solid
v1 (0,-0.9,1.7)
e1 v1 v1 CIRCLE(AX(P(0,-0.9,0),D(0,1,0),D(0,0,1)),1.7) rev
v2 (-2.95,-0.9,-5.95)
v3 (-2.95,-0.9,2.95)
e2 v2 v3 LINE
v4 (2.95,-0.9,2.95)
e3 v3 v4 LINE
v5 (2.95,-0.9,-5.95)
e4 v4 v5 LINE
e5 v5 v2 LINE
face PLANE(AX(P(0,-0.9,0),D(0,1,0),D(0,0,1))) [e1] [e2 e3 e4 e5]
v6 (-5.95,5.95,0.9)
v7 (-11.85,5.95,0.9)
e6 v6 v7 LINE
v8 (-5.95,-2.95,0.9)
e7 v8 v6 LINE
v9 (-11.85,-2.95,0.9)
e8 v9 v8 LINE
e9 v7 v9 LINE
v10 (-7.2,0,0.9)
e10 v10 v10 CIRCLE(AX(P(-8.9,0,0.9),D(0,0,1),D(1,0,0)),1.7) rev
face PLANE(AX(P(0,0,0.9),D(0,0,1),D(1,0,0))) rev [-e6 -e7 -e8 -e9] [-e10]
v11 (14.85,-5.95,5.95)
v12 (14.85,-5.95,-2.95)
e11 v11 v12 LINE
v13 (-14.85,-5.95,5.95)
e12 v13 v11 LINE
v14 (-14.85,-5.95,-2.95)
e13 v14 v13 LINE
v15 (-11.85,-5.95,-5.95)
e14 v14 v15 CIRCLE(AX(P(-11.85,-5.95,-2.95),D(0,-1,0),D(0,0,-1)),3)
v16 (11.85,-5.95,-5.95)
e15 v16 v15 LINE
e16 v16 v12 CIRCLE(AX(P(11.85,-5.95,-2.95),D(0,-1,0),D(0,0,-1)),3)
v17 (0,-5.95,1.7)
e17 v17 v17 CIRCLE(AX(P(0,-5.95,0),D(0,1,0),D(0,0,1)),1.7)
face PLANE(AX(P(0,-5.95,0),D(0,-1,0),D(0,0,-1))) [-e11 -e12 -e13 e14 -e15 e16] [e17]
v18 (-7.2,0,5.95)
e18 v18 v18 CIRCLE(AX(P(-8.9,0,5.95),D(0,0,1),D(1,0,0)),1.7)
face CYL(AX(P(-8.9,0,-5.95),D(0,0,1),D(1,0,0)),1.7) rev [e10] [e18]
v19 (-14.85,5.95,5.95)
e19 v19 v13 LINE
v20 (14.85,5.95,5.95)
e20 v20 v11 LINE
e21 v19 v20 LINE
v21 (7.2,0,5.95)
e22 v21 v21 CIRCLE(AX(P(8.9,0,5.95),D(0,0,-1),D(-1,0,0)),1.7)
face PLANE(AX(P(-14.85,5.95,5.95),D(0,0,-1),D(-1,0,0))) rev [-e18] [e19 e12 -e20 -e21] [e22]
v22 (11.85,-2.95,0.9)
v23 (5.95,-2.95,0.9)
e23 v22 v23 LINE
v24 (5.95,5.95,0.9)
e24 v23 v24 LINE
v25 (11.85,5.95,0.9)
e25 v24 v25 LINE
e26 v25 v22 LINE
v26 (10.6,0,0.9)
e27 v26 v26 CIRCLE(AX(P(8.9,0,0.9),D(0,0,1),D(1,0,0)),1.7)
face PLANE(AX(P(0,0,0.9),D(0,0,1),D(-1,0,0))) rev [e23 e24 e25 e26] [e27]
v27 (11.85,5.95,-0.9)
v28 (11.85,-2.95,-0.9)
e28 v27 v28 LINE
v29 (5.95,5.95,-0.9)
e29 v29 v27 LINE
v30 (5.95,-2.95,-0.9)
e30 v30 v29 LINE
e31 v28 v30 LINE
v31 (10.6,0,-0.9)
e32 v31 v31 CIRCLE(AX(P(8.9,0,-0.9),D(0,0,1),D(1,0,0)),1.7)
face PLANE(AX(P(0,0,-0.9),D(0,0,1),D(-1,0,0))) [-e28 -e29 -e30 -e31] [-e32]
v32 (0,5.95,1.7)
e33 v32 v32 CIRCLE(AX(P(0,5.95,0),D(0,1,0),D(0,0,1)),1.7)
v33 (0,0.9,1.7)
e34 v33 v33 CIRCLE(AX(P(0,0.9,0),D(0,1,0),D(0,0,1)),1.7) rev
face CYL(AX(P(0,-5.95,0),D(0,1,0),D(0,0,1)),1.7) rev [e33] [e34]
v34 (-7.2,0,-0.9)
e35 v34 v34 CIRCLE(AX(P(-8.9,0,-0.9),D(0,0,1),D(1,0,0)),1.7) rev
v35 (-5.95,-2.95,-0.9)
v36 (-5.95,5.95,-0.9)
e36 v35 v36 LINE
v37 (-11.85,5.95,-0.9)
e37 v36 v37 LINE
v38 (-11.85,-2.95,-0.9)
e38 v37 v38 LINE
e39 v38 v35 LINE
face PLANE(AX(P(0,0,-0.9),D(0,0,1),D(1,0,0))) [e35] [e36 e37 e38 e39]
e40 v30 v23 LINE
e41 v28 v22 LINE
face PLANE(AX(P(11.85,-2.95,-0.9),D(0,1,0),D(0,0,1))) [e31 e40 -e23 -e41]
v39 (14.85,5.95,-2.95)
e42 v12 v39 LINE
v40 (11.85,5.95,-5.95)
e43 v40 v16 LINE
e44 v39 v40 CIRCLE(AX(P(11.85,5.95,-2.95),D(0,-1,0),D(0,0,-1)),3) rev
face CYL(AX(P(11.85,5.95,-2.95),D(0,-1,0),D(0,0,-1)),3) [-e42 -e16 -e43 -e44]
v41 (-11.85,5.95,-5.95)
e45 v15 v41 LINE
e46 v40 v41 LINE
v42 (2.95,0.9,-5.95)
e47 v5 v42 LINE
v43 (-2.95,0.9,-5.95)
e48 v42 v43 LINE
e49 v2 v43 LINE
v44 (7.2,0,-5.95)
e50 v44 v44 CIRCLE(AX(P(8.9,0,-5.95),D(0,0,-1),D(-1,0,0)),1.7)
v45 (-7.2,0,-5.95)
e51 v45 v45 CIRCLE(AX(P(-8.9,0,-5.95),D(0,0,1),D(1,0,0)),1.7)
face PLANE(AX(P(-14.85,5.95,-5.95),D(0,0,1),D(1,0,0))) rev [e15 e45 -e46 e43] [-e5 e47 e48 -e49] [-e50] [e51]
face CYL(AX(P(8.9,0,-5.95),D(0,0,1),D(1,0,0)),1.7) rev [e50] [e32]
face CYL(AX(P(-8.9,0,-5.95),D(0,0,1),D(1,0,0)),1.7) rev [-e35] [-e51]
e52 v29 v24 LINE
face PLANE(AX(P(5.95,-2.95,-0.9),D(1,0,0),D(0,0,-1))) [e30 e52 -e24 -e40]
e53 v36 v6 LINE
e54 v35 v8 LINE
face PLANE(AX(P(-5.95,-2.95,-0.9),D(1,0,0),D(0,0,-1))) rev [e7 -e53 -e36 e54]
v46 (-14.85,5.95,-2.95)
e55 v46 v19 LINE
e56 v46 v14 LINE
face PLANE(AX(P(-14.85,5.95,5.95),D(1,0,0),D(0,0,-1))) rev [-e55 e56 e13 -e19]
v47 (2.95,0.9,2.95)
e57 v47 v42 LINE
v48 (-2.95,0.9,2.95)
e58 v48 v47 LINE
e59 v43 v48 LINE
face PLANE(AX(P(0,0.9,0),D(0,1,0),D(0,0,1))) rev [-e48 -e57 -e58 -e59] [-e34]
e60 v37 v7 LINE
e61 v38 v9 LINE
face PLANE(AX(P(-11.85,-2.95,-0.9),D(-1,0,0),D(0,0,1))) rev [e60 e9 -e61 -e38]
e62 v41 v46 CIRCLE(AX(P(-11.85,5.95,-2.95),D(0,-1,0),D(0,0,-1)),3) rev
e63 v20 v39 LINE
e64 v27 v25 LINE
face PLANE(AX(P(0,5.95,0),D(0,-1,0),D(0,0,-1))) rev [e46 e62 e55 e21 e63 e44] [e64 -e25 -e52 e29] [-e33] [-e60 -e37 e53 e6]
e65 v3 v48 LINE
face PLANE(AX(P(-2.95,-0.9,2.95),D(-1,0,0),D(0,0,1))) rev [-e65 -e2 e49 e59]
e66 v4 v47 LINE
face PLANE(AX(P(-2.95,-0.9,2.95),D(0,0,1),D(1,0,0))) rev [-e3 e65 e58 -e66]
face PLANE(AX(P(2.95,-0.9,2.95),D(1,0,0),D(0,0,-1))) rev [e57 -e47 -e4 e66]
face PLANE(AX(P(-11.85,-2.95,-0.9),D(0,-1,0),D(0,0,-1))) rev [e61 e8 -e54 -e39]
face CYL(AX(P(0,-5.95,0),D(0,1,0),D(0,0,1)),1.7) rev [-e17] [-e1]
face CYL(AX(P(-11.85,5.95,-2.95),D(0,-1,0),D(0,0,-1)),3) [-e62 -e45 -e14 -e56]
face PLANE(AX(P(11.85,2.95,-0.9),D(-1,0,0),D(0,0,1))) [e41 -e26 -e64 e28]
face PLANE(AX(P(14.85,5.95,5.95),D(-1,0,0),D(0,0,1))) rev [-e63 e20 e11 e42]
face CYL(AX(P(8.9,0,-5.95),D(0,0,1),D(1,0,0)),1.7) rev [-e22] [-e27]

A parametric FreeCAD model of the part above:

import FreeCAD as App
import Part
import Sketcher

V = App.Vector


def edges_at(feature, points):
    """Names of the edges that pass closest to the given points."""
    edges = feature.Shape.Edges
    near = lambda p: min(range(len(edges)), key=lambda i: edges[i].distToShape(Part.Vertex(*p))[0])
    return sorted({f"Edge{near(p) + 1}" for p in points})


def add_polygon(sketch, points):
    """Adds a closed chain of lines whose ends are joined by coincident constraints."""
    first, n = sketch.GeometryCount, len(points)
    for a, b in zip(points, points[1:] + points[:1]):
        sketch.addGeometry(Part.LineSegment(App.Vector(*a, 0), App.Vector(*b, 0)), False)
    for i in range(n):
        sketch.addConstraint(Sketcher.Constraint("Coincident", first + i, 2, first + (i + 1) % n, 1))

doc = App.newDocument("Part")
body = doc.addObject("PartDesign::Body", "Body")

sketch1 = body.newObject("Sketcher::SketchObject", "Sketch")
sketch1.AttachmentSupport = (doc.getObject("XZ_Plane"), [""])
sketch1.MapMode = "FlatFace"
add_polygon(sketch1, [(-15, -6), (-15, 6), (15, 6), (15, -6)])
sketch1.addConstraint(Sketcher.Constraint("Vertical", 0))
sketch1.addConstraint(Sketcher.Constraint("Horizontal", 1))
sketch1.addConstraint(Sketcher.Constraint("Vertical", 2))
sketch1.addConstraint(Sketcher.Constraint("Horizontal", 3))
sketch1.addConstraint(Sketcher.Constraint("Symmetric", 0, 2, 2, 2, -1, 1))
sketch1.addConstraint(Sketcher.Constraint("DistanceX", 1, 1, 1, 2, 29.7))
sketch1.addConstraint(Sketcher.Constraint("DistanceY", 0, 1, 0, 2, 11.9))
pad1 = body.newObject("PartDesign::Pad", "Pad")
pad1.Profile = sketch1
pad1.Length = 11.9
pad1.Midplane = True

sketch2 = body.newObject("Sketcher::SketchObject", "Sketch001")
sketch2.AttachmentSupport = (doc.getObject("XY_Plane"), [""])
sketch2.MapMode = "FlatFace"
sketch2.AttachmentOffset = App.Placement(V(0, 0, 5.95), App.Rotation())
sketch2.addGeometry(Part.Circle(V(-8.9, 0, 0), V(0, 0, 1), 1.7), False)
sketch2.addConstraint(Sketcher.Constraint("PointOnObject", 0, 3, -1))
sketch2.addConstraint(Sketcher.Constraint("Diameter", 0, 3.4))
sketch2.addConstraint(Sketcher.Constraint("DistanceX", 0, 3, -1, 1, 8.9))
pocket1 = body.newObject("PartDesign::Pocket", "Pocket")
pocket1.Profile = sketch2
pocket1.Type = "ThroughAll"

sketch3 = body.newObject("Sketcher::SketchObject", "Sketch002")
sketch3.AttachmentSupport = (doc.getObject("XY_Plane"), [""])
sketch3.MapMode = "FlatFace"
add_polygon(sketch3, [(-12, 6), (-12, -3), (-6, -3), (-6, 6)])
sketch3.addConstraint(Sketcher.Constraint("Vertical", 0))
sketch3.addConstraint(Sketcher.Constraint("Horizontal", 1))
sketch3.addConstraint(Sketcher.Constraint("Vertical", 2))
sketch3.addConstraint(Sketcher.Constraint("Horizontal", 3))
sketch3.addConstraint(Sketcher.Constraint("DistanceX", 1, 1, 1, 2, 5.9))
sketch3.addConstraint(Sketcher.Constraint("DistanceY", 0, 2, 0, 1, 8.9))
sketch3.addConstraint(Sketcher.Constraint("DistanceX", 0, 2, -1, 1, 11.85))
sketch3.addConstraint(Sketcher.Constraint("DistanceY", 0, 2, -1, 1, 2.95))
pocket2 = body.newObject("PartDesign::Pocket", "Pocket001")
pocket2.Profile = sketch3
pocket2.Length = 1.8
pocket2.Midplane = True
doc.recompute()

mirrored = body.newObject("PartDesign::Mirrored", "Mirrored")
mirrored.Originals = [pocket1, pocket2]
mirrored.MirrorPlane = (doc.getObject("YZ_Plane"), [""])
body.Tip = mirrored

sketch4 = body.newObject("Sketcher::SketchObject", "Sketch003")
sketch4.AttachmentSupport = (doc.getObject("XZ_Plane"), [""])
sketch4.MapMode = "FlatFace"
sketch4.AttachmentOffset = App.Placement(V(0, 0, -5.95), App.Rotation())
sketch4.addGeometry(Part.Circle(V(0, 0, 0), V(0, 0, 1), 1.7), False)
sketch4.addConstraint(Sketcher.Constraint("Coincident", 0, 3, -1, 1))
sketch4.addConstraint(Sketcher.Constraint("Diameter", 0, 3.4))
pocket3 = body.newObject("PartDesign::Pocket", "Pocket002")
pocket3.Profile = sketch4
pocket3.Type = "ThroughAll"
pocket3.Reversed = True

sketch5 = body.newObject("Sketcher::SketchObject", "Sketch004")
sketch5.AttachmentSupport = (doc.getObject("XZ_Plane"), [""])
sketch5.MapMode = "FlatFace"
add_polygon(sketch5, [(-3, -6), (-3, 3), (3, 3), (3, -6)])
sketch5.addConstraint(Sketcher.Constraint("Vertical", 0))
sketch5.addConstraint(Sketcher.Constraint("Horizontal", 1))
sketch5.addConstraint(Sketcher.Constraint("Vertical", 2))
sketch5.addConstraint(Sketcher.Constraint("Horizontal", 3))
sketch5.addConstraint(Sketcher.Constraint("DistanceX", 1, 1, 1, 2, 5.9))
sketch5.addConstraint(Sketcher.Constraint("DistanceY", 0, 1, 0, 2, 8.9))
sketch5.addConstraint(Sketcher.Constraint("DistanceX", 0, 2, -1, 1, 2.95))
sketch5.addConstraint(Sketcher.Constraint("DistanceY", -1, 1, 0, 2, 2.95))
pocket4 = body.newObject("PartDesign::Pocket", "Pocket003")
pocket4.Profile = sketch5
pocket4.Length = 1.8
pocket4.Midplane = True
doc.recompute()

fillet = body.newObject("PartDesign::Fillet", "Fillet")
fillet.Base = (pocket4, edges_at(pocket4, [(-14.85, 0, -5.95), (14.85, 0, -5.95)]))
fillet.Radius = 3

doc.recompute()
